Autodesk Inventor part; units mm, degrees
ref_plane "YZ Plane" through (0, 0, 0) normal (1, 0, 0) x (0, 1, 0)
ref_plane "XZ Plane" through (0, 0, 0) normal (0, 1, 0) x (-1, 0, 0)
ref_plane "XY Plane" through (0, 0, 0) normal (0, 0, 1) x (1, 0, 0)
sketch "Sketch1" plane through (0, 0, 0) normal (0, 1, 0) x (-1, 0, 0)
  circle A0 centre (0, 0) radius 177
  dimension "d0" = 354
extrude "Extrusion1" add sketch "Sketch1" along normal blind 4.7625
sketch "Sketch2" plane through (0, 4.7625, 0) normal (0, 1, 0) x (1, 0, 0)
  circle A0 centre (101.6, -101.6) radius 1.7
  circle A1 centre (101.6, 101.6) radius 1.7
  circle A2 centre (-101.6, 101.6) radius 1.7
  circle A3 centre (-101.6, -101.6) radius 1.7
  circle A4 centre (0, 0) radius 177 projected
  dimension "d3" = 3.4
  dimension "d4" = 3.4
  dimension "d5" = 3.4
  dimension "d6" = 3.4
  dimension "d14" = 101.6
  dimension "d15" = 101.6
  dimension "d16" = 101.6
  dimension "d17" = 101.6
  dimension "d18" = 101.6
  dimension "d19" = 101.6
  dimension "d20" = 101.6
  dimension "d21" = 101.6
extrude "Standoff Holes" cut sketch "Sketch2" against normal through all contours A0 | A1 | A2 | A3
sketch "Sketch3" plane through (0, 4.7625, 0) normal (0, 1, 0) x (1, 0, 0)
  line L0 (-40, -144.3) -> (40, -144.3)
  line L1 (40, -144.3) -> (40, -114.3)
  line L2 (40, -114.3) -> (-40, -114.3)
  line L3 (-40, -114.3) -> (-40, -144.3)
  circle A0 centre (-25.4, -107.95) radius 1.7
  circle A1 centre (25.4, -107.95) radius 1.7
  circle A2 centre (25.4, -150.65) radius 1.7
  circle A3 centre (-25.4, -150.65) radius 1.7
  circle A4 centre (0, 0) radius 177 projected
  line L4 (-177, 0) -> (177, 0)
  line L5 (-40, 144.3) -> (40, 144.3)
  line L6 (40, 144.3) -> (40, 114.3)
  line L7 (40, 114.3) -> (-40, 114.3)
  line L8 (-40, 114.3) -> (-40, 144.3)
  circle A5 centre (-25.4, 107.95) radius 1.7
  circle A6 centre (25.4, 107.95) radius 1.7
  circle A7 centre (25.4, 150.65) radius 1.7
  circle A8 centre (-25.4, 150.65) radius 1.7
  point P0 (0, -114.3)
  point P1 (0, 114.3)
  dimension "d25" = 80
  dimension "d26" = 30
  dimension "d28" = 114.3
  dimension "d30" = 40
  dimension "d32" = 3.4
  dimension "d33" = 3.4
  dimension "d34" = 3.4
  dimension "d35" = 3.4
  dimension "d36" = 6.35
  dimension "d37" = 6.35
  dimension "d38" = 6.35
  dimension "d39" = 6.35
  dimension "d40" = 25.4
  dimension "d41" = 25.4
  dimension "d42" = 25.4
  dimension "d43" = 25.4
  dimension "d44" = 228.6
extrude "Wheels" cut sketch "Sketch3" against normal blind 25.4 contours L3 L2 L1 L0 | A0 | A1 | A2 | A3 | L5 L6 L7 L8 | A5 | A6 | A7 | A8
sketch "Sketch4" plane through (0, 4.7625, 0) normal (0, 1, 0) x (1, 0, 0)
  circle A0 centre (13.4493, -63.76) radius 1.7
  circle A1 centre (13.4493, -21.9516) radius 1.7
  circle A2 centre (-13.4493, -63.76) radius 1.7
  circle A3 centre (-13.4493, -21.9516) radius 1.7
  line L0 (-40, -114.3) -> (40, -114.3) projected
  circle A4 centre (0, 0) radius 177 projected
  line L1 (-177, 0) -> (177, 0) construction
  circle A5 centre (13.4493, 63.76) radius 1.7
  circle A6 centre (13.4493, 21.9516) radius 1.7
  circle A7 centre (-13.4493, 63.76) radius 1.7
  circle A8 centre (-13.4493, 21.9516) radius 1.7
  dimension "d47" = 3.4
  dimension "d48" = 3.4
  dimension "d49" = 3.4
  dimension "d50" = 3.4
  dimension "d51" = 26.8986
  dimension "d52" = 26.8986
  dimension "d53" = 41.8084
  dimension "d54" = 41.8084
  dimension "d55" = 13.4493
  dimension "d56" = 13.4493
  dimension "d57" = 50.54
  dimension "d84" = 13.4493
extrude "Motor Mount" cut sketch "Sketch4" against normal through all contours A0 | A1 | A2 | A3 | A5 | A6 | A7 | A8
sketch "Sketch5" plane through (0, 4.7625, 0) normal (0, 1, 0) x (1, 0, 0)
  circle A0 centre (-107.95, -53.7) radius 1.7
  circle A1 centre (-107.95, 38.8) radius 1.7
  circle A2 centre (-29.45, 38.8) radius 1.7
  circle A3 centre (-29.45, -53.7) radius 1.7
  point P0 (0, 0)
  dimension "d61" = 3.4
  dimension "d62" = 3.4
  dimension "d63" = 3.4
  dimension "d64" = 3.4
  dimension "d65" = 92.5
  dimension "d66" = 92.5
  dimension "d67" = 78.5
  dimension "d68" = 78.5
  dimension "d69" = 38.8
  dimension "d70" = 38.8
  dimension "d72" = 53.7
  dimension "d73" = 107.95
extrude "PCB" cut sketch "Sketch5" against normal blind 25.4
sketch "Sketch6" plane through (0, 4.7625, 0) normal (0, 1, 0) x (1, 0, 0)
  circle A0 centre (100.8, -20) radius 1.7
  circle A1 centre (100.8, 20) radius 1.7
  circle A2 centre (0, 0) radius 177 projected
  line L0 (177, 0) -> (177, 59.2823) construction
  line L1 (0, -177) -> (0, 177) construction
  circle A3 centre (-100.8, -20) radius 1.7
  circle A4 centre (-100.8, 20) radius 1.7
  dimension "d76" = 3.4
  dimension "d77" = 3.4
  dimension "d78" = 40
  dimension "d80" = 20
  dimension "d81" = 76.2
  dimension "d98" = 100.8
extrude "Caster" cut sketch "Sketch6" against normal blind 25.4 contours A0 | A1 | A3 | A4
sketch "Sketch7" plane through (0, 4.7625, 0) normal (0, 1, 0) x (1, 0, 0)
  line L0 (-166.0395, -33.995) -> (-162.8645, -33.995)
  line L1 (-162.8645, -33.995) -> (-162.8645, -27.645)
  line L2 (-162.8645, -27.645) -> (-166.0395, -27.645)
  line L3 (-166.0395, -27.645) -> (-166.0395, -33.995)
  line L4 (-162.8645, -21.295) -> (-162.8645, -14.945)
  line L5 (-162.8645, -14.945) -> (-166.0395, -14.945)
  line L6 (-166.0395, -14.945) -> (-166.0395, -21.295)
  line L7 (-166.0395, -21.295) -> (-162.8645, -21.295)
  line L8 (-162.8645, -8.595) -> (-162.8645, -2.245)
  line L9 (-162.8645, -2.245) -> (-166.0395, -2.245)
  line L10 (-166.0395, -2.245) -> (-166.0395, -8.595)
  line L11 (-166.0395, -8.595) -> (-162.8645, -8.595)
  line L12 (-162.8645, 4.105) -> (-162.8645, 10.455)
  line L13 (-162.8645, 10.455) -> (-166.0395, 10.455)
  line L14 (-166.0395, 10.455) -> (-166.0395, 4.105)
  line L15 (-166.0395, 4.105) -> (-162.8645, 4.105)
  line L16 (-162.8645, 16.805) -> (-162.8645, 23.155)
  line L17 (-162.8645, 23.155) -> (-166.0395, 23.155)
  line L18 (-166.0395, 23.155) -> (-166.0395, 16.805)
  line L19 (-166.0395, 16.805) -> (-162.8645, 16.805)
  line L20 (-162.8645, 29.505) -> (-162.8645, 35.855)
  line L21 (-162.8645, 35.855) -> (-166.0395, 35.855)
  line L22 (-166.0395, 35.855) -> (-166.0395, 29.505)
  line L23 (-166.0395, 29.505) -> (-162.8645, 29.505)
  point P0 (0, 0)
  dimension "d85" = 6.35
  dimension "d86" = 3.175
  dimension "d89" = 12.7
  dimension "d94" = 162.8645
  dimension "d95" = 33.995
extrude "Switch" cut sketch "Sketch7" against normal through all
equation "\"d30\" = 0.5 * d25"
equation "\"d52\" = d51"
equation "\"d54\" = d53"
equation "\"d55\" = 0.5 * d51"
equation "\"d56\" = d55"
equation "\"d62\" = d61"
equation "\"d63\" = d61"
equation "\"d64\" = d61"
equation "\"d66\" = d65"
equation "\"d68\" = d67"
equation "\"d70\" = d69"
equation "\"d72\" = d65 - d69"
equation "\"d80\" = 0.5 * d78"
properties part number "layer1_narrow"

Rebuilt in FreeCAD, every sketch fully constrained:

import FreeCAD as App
import Part
import Sketcher

V = App.Vector
Q = App.Units.Quantity

doc = App.newDocument("Part")
body = doc.addObject("PartDesign::Body", "Body")

sketch1 = body.newObject("Sketcher::SketchObject", "Sketch")
sketch1.AttachmentSupport = (doc.getObject("XZ_Plane"), [""])
sketch1.MapMode = "FlatFace"
sketch1.addGeometry(Part.Circle(V(0, 0, 0), V(0, 0, 1), 177), False)
sketch1.addConstraint(Sketcher.Constraint("Coincident", 0, 3, -1, 1))
sketch1.addConstraint(Sketcher.Constraint("Diameter", 0, Q("13.937 in")))
pad1 = body.newObject("PartDesign::Pad", "Pad")
pad1.Profile = sketch1
pad1.Length = Q("0.1875 in")
pad1.Reversed = True

sketch2 = body.newObject("Sketcher::SketchObject", "Sketch001")
sketch2.AttachmentSupport = (doc.getObject("XZ_Plane"), [""])
sketch2.MapMode = "FlatFace"
sketch2.AttachmentOffset = App.Placement(V(0, 0, -0.1875 * 25.4), App.Rotation())
sketch2.addGeometry(Part.Circle(V(101.6, 101.6, 0), V(0, 0, 1), 1.7), False)
sketch2.addGeometry(Part.Circle(V(101.6, -101.6, 0), V(0, 0, 1), 1.7), False)
sketch2.addGeometry(Part.Circle(V(-101.6, -101.6, 0), V(0, 0, 1), 1.7), False)
sketch2.addGeometry(Part.Circle(V(-101.6, 101.6, 0), V(0, 0, 1), 1.7), False)
sketch2.addConstraint(Sketcher.Constraint("Equal", 0, 1))
sketch2.addConstraint(Sketcher.Constraint("Equal", 1, 2))
sketch2.addConstraint(Sketcher.Constraint("Equal", 2, 3))
sketch2.addConstraint(Sketcher.Constraint("Symmetric", 0, 3, 2, 3, -1, 1))
sketch2.addConstraint(Sketcher.Constraint("Symmetric", 1, 3, 3, 3, -1, 1))
sketch2.addConstraint(Sketcher.Constraint("Symmetric", 1, 3, 2, 3, -2))
sketch2.addConstraint(Sketcher.Constraint("DistanceX", -1, 1, 0, 3, Q("4 in")))
sketch2.addConstraint(Sketcher.Constraint("DistanceY", -1, 1, 0, 3, Q("4 in")))
sketch2.addConstraint(Sketcher.Constraint("Diameter", 0, Q("3.4 mm")))
pocket1 = body.newObject("PartDesign::Pocket", "Pocket")
pocket1.Profile = sketch2
pocket1.Type = "ThroughAll"
pocket1.Reversed = True

sketch3 = body.newObject("Sketcher::SketchObject", "Sketch002")
sketch3.AttachmentSupport = (doc.getObject("XZ_Plane"), [""])
sketch3.MapMode = "FlatFace"
sketch3.AttachmentOffset = App.Placement(V(0, 0, -0.1875 * 25.4), App.Rotation())
sketch3.addGeometry(Part.LineSegment(V(-40, 114.3, 0), V(-40, 144.3, 0)), False)
sketch3.addGeometry(Part.LineSegment(V(-40, 144.3, 0), V(40, 144.3, 0)), False)
sketch3.addGeometry(Part.LineSegment(V(40, 144.3, 0), V(40, 114.3, 0)), False)
sketch3.addGeometry(Part.LineSegment(V(40, 114.3, 0), V(-40, 114.3, 0)), False)
sketch3.addGeometry(Part.Circle(V(-25.4, 108, 0), V(0, 0, 1), 1.7), False)
sketch3.addGeometry(Part.Circle(V(25.4, 108, 0), V(0, 0, 1), 1.7), False)
sketch3.addGeometry(Part.Circle(V(25.4, 150.7, 0), V(0, 0, 1), 1.7), False)
sketch3.addGeometry(Part.Circle(V(-25.4, 150.7, 0), V(0, 0, 1), 1.7), False)
sketch3.addGeometry(Part.LineSegment(V(40, -144.3, 0), V(-40, -144.3, 0)), False)
sketch3.addGeometry(Part.LineSegment(V(-40, -144.3, 0), V(-40, -114.3, 0)), False)
sketch3.addGeometry(Part.LineSegment(V(-40, -114.3, 0), V(40, -114.3, 0)), False)
sketch3.addGeometry(Part.LineSegment(V(40, -114.3, 0), V(40, -144.3, 0)), False)
sketch3.addGeometry(Part.Circle(V(-25.4, -108, 0), V(0, 0, 1), 1.7), False)
sketch3.addGeometry(Part.Circle(V(25.4, -108, 0), V(0, 0, 1), 1.7), False)
sketch3.addGeometry(Part.Circle(V(25.4, -150.7, 0), V(0, 0, 1), 1.7), False)
sketch3.addGeometry(Part.Circle(V(-25.4, -150.7, 0), V(0, 0, 1), 1.7), False)
sketch3.addConstraint(Sketcher.Constraint("Coincident", 0, 2, 1, 1))
sketch3.addConstraint(Sketcher.Constraint("Coincident", 1, 2, 2, 1))
sketch3.addConstraint(Sketcher.Constraint("Coincident", 2, 2, 3, 1))
sketch3.addConstraint(Sketcher.Constraint("Coincident", 3, 2, 0, 1))
sketch3.addConstraint(Sketcher.Constraint("Coincident", 8, 2, 9, 1))
sketch3.addConstraint(Sketcher.Constraint("Coincident", 9, 2, 10, 1))
sketch3.addConstraint(Sketcher.Constraint("Coincident", 10, 2, 11, 1))
sketch3.addConstraint(Sketcher.Constraint("Coincident", 11, 2, 8, 1))
sketch3.addConstraint(Sketcher.Constraint("Vertical", 0))
sketch3.addConstraint(Sketcher.Constraint("Horizontal", 1))
sketch3.addConstraint(Sketcher.Constraint("Vertical", 2))
sketch3.addConstraint(Sketcher.Constraint("Horizontal", 3))
sketch3.addConstraint(Sketcher.Constraint("Horizontal", 8))
sketch3.addConstraint(Sketcher.Constraint("Vertical", 9))
sketch3.addConstraint(Sketcher.Constraint("Horizontal", 10))
sketch3.addConstraint(Sketcher.Constraint("Vertical", 11))
sketch3.addConstraint(Sketcher.Constraint("Equal", 4, 5))
sketch3.addConstraint(Sketcher.Constraint("Equal", 5, 6))
sketch3.addConstraint(Sketcher.Constraint("Equal", 6, 7))
sketch3.addConstraint(Sketcher.Constraint("Equal", 7, 12))
sketch3.addConstraint(Sketcher.Constraint("Equal", 12, 13))
sketch3.addConstraint(Sketcher.Constraint("Equal", 13, 14))
sketch3.addConstraint(Sketcher.Constraint("Equal", 14, 15))
sketch3.addConstraint(Sketcher.Constraint("Symmetric", 5, 3, 12, 3, -1, 1))
sketch3.addConstraint(Sketcher.Constraint("Symmetric", 4, 3, 13, 3, -1, 1))
sketch3.addConstraint(Sketcher.Constraint("Symmetric", 7, 3, 14, 3, -1, 1))
sketch3.addConstraint(Sketcher.Constraint("Symmetric", 6, 3, 15, 3, -1, 1))
sketch3.addConstraint(Sketcher.Constraint("Symmetric", 1, 2, 8, 2, -1, 1))
sketch3.addConstraint(Sketcher.Constraint("Symmetric", 3, 2, 10, 2, -1, 1))
sketch3.addConstraint(Sketcher.Constraint("Symmetric", 4, 3, 5, 3, -2))
sketch3.addConstraint(Sketcher.Constraint("Symmetric", 6, 3, 7, 3, -2))
sketch3.addConstraint(Sketcher.Constraint("Vertical", 5, 3, 6, 3))
sketch3.addConstraint(Sketcher.Constraint("Vertical", 3, 2, 8, 2))
sketch3.addConstraint(Sketcher.Constraint("DistanceX", 4, 3, -1, 1, Q("1 in")))
sketch3.addConstraint(Sketcher.Constraint("DistanceY", -1, 1, 2, 2, Q("4.5 in")))
sketch3.addConstraint(Sketcher.Constraint("Diameter", 4, Q("3.4 mm")))
sketch3.addConstraint(Sketcher.Constraint("DistanceY", 0, 2, 7, 3, Q("0.25 in")))
sketch3.addConstraint(Sketcher.Constraint("DistanceY", 5, 3, 2, 2, Q("0.25 in")))
sketch3.addConstraint(Sketcher.Constraint("DistanceX", 1, 1, 1, 2, Q("3.1496 in")))
sketch3.addConstraint(Sketcher.Constraint("DistanceY", 0, 1, 0, 2, Q("1.1811 in")))
pocket2 = body.newObject("PartDesign::Pocket", "Pocket001")
pocket2.Profile = sketch3
pocket2.Length = Q("1 in")
pocket2.Reversed = True

sketch4 = body.newObject("Sketcher::SketchObject", "Sketch003")
sketch4.AttachmentSupport = (doc.getObject("XZ_Plane"), [""])
sketch4.MapMode = "FlatFace"
sketch4.AttachmentOffset = App.Placement(V(0, 0, -0.1875 * 25.4), App.Rotation())
sketch4.addGeometry(Part.Circle(V(13.4, 63.8, 0), V(0, 0, 1), 1.7), False)
sketch4.addGeometry(Part.Circle(V(13.4, 22, 0), V(0, 0, 1), 1.7), False)
sketch4.addGeometry(Part.Circle(V(-13.4, 63.8, 0), V(0, 0, 1), 1.7), False)
sketch4.addGeometry(Part.Circle(V(-13.4, 22, 0), V(0, 0, 1), 1.7), False)
sketch4.addGeometry(Part.Circle(V(13.4, -63.8, 0), V(0, 0, 1), 1.7), False)
sketch4.addGeometry(Part.Circle(V(13.4, -22, 0), V(0, 0, 1), 1.7), False)
sketch4.addGeometry(Part.Circle(V(-13.4, -63.8, 0), V(0, 0, 1), 1.7), False)
sketch4.addGeometry(Part.Circle(V(-13.4, -22, 0), V(0, 0, 1), 1.7), False)
sketch4.addConstraint(Sketcher.Constraint("Equal", 0, 1))
sketch4.addConstraint(Sketcher.Constraint("Equal", 1, 2))
sketch4.addConstraint(Sketcher.Constraint("Equal", 2, 3))
sketch4.addConstraint(Sketcher.Constraint("Equal", 3, 4))
sketch4.addConstraint(Sketcher.Constraint("Equal", 4, 5))
sketch4.addConstraint(Sketcher.Constraint("Equal", 5, 6))
sketch4.addConstraint(Sketcher.Constraint("Equal", 6, 7))
sketch4.addConstraint(Sketcher.Constraint("Symmetric", 2, 3, 4, 3, -1, 1))
sketch4.addConstraint(Sketcher.Constraint("Symmetric", 3, 3, 5, 3, -1, 1))
sketch4.addConstraint(Sketcher.Constraint("Symmetric", 0, 3, 6, 3, -1, 1))
sketch4.addConstraint(Sketcher.Constraint("Symmetric", 1, 3, 7, 3, -1, 1))
sketch4.addConstraint(Sketcher.Constraint("Symmetric", 0, 3, 2, 3, -2))
sketch4.addConstraint(Sketcher.Constraint("Symmetric", 1, 3, 3, 3, -2))
sketch4.addConstraint(Sketcher.Constraint("Vertical", 0, 3, 1, 3))
sketch4.addConstraint(Sketcher.Constraint("Diameter", 0, Q("3.4 mm")))
sketch4.addConstraint(Sketcher.Constraint("DistanceY", 1, 3, 0, 3, Q("1.646 in")))
sketch4.addConstraint(Sketcher.Constraint("DistanceX", 2, 3, 0, 3, Q("1.059 in")))
sketch4.addConstraint(Sketcher.Constraint("DistanceY", -1, 1, 0, 3, Q("63.76 mm")))
pocket3 = body.newObject("PartDesign::Pocket", "Pocket002")
pocket3.Profile = sketch4
pocket3.Type = "ThroughAll"
pocket3.Reversed = True

sketch5 = body.newObject("Sketcher::SketchObject", "Sketch004")
sketch5.AttachmentSupport = (doc.getObject("XZ_Plane"), [""])
sketch5.MapMode = "FlatFace"
sketch5.AttachmentOffset = App.Placement(V(0, 0, -0.1875 * 25.4), App.Rotation())
sketch5.addGeometry(Part.Circle(V(-108, 53.7, 0), V(0, 0, 1), 1.7), False)
sketch5.addGeometry(Part.Circle(V(-108, -38.8, 0), V(0, 0, 1), 1.7), False)
sketch5.addGeometry(Part.Circle(V(-29.4, -38.8, 0), V(0, 0, 1), 1.7), False)
sketch5.addGeometry(Part.Circle(V(-29.4, 53.7, 0), V(0, 0, 1), 1.7), False)
sketch5.addConstraint(Sketcher.Constraint("Equal", 0, 1))
sketch5.addConstraint(Sketcher.Constraint("Equal", 1, 2))
sketch5.addConstraint(Sketcher.Constraint("Equal", 2, 3))
sketch5.addConstraint(Sketcher.Constraint("Horizontal", 1, 3, 2, 3))
sketch5.addConstraint(Sketcher.Constraint("Horizontal", 0, 3, 3, 3))
sketch5.addConstraint(Sketcher.Constraint("Vertical", 0, 3, 1, 3))
sketch5.addConstraint(Sketcher.Constraint("Vertical", 2, 3, 3, 3))
sketch5.addConstraint(Sketcher.Constraint("Diameter", 0, Q("3.4 mm")))
sketch5.addConstraint(Sketcher.Constraint("DistanceX", 0, 3, -1, 1, Q("4.25 in")))
sketch5.addConstraint(Sketcher.Constraint("DistanceY", -1, 1, 0, 3, Q("53.7 mm")))
sketch5.addConstraint(Sketcher.Constraint("DistanceY", 1, 3, -1, 1, Q("38.8 mm")))
sketch5.addConstraint(Sketcher.Constraint("DistanceX", 1, 3, 2, 3, Q("78.5 mm")))
pocket4 = body.newObject("PartDesign::Pocket", "Pocket003")
pocket4.Profile = sketch5
pocket4.Length = Q("1 in")
pocket4.Reversed = True

sketch6 = body.newObject("Sketcher::SketchObject", "Sketch005")
sketch6.AttachmentSupport = (doc.getObject("XZ_Plane"), [""])
sketch6.MapMode = "FlatFace"
sketch6.AttachmentOffset = App.Placement(V(0, 0, -0.1875 * 25.4), App.Rotation())
sketch6.addGeometry(Part.Circle(V(100.8, 20, 0), V(0, 0, 1), 1.7), False)
sketch6.addGeometry(Part.Circle(V(100.8, -20, 0), V(0, 0, 1), 1.7), False)
sketch6.addGeometry(Part.Circle(V(-100.8, 20, 0), V(0, 0, 1), 1.7), False)
sketch6.addGeometry(Part.Circle(V(-100.8, -20, 0), V(0, 0, 1), 1.7), False)
sketch6.addConstraint(Sketcher.Constraint("Equal", 0, 1))
sketch6.addConstraint(Sketcher.Constraint("Equal", 1, 2))
sketch6.addConstraint(Sketcher.Constraint("Equal", 2, 3))
sketch6.addConstraint(Sketcher.Constraint("Symmetric", 1, 3, 2, 3, -1, 1))
sketch6.addConstraint(Sketcher.Constraint("Symmetric", 0, 3, 3, 3, -1, 1))
sketch6.addConstraint(Sketcher.Constraint("Symmetric", 0, 3, 2, 3, -2))
sketch6.addConstraint(Sketcher.Constraint("Diameter", 0, Q("3.4 mm")))
sketch6.addConstraint(Sketcher.Constraint("DistanceX", -1, 1, 0, 3, Q("3.9685 in")))
sketch6.addConstraint(Sketcher.Constraint("DistanceY", -1, 1, 0, 3, Q("0.7874 in")))
pocket5 = body.newObject("PartDesign::Pocket", "Pocket004")
pocket5.Profile = sketch6
pocket5.Length = Q("1 in")
pocket5.Reversed = True

sketch7 = body.newObject("Sketcher::SketchObject", "Sketch006")
sketch7.AttachmentSupport = (doc.getObject("XZ_Plane"), [""])
sketch7.MapMode = "FlatFace"
sketch7.AttachmentOffset = App.Placement(V(0, 0, -0.1875 * 25.4), App.Rotation())
sketch7.addGeometry(Part.LineSegment(V(-166, 27.6, 0), V(-166, 34, 0)), False)
sketch7.addGeometry(Part.LineSegment(V(-166, 34, 0), V(-162.9, 34, 0)), False)
sketch7.addGeometry(Part.LineSegment(V(-162.9, 34, 0), V(-162.9, 27.6, 0)), False)
sketch7.addGeometry(Part.LineSegment(V(-162.9, 27.6, 0), V(-166, 27.6, 0)), False)
sketch7.addGeometry(Part.LineSegment(V(-166, 21.3, 0), V(-162.9, 21.3, 0)), False)
sketch7.addGeometry(Part.LineSegment(V(-162.9, 21.3, 0), V(-162.9, 14.9, 0)), False)
sketch7.addGeometry(Part.LineSegment(V(-162.9, 14.9, 0), V(-166, 14.9, 0)), False)
sketch7.addGeometry(Part.LineSegment(V(-166, 14.9, 0), V(-166, 21.3, 0)), False)
sketch7.addGeometry(Part.LineSegment(V(-166, 8.6, 0), V(-162.9, 8.6, 0)), False)
sketch7.addGeometry(Part.LineSegment(V(-162.9, 8.6, 0), V(-162.9, 2.2, 0)), False)
sketch7.addGeometry(Part.LineSegment(V(-162.9, 2.2, 0), V(-166, 2.2, 0)), False)
sketch7.addGeometry(Part.LineSegment(V(-166, 2.2, 0), V(-166, 8.6, 0)), False)
sketch7.addGeometry(Part.LineSegment(V(-166, -4.1, 0), V(-162.9, -4.1, 0)), False)
sketch7.addGeometry(Part.LineSegment(V(-162.9, -4.1, 0), V(-162.9, -10.5, 0)), False)
sketch7.addGeometry(Part.LineSegment(V(-162.9, -10.5, 0), V(-166, -10.5, 0)), False)
sketch7.addGeometry(Part.LineSegment(V(-166, -10.5, 0), V(-166, -4.1, 0)), False)
sketch7.addGeometry(Part.LineSegment(V(-166, -16.8, 0), V(-162.9, -16.8, 0)), False)
sketch7.addGeometry(Part.LineSegment(V(-162.9, -16.8, 0), V(-162.9, -23.2, 0)), False)
sketch7.addGeometry(Part.LineSegment(V(-162.9, -23.2, 0), V(-166, -23.2, 0)), False)
sketch7.addGeometry(Part.LineSegment(V(-166, -23.2, 0), V(-166, -16.8, 0)), False)
sketch7.addGeometry(Part.LineSegment(V(-166, -29.5, 0), V(-162.9, -29.5, 0)), False)
sketch7.addGeometry(Part.LineSegment(V(-162.9, -29.5, 0), V(-162.9, -35.9, 0)), False)
sketch7.addGeometry(Part.LineSegment(V(-162.9, -35.9, 0), V(-166, -35.9, 0)), False)
sketch7.addGeometry(Part.LineSegment(V(-166, -35.9, 0), V(-166, -29.5, 0)), False)
sketch7.addConstraint(Sketcher.Constraint("Coincident", 0, 2, 1, 1))
sketch7.addConstraint(Sketcher.Constraint("Coincident", 1, 2, 2, 1))
sketch7.addConstraint(Sketcher.Constraint("Coincident", 2, 2, 3, 1))
sketch7.addConstraint(Sketcher.Constraint("Coincident", 3, 2, 0, 1))
sketch7.addConstraint(Sketcher.Constraint("Coincident", 4, 2, 5, 1))
sketch7.addConstraint(Sketcher.Constraint("Coincident", 5, 2, 6, 1))
sketch7.addConstraint(Sketcher.Constraint("Coincident", 6, 2, 7, 1))
sketch7.addConstraint(Sketcher.Constraint("Coincident", 7, 2, 4, 1))
sketch7.addConstraint(Sketcher.Constraint("Coincident", 8, 2, 9, 1))
sketch7.addConstraint(Sketcher.Constraint("Coincident", 9, 2, 10, 1))
sketch7.addConstraint(Sketcher.Constraint("Coincident", 10, 2, 11, 1))
sketch7.addConstraint(Sketcher.Constraint("Coincident", 11, 2, 8, 1))
sketch7.addConstraint(Sketcher.Constraint("Coincident", 12, 2, 13, 1))
sketch7.addConstraint(Sketcher.Constraint("Coincident", 13, 2, 14, 1))
sketch7.addConstraint(Sketcher.Constraint("Coincident", 14, 2, 15, 1))
sketch7.addConstraint(Sketcher.Constraint("Coincident", 15, 2, 12, 1))
sketch7.addConstraint(Sketcher.Constraint("Coincident", 16, 2, 17, 1))
sketch7.addConstraint(Sketcher.Constraint("Coincident", 17, 2, 18, 1))
sketch7.addConstraint(Sketcher.Constraint("Coincident", 18, 2, 19, 1))
sketch7.addConstraint(Sketcher.Constraint("Coincident", 19, 2, 16, 1))
sketch7.addConstraint(Sketcher.Constraint("Coincident", 20, 2, 21, 1))
sketch7.addConstraint(Sketcher.Constraint("Coincident", 21, 2, 22, 1))
sketch7.addConstraint(Sketcher.Constraint("Coincident", 22, 2, 23, 1))
sketch7.addConstraint(Sketcher.Constraint("Coincident", 23, 2, 20, 1))
sketch7.addConstraint(Sketcher.Constraint("Vertical", 0))
sketch7.addConstraint(Sketcher.Constraint("Horizontal", 1))
sketch7.addConstraint(Sketcher.Constraint("Vertical", 2))
sketch7.addConstraint(Sketcher.Constraint("Horizontal", 3))
sketch7.addConstraint(Sketcher.Constraint("Horizontal", 4))
sketch7.addConstraint(Sketcher.Constraint("Vertical", 5))
sketch7.addConstraint(Sketcher.Constraint("Horizontal", 6))
sketch7.addConstraint(Sketcher.Constraint("Vertical", 7))
sketch7.addConstraint(Sketcher.Constraint("Horizontal", 8))
sketch7.addConstraint(Sketcher.Constraint("Vertical", 9))
sketch7.addConstraint(Sketcher.Constraint("Horizontal", 10))
sketch7.addConstraint(Sketcher.Constraint("Vertical", 11))
sketch7.addConstraint(Sketcher.Constraint("Horizontal", 12))
sketch7.addConstraint(Sketcher.Constraint("Vertical", 13))
sketch7.addConstraint(Sketcher.Constraint("Horizontal", 14))
sketch7.addConstraint(Sketcher.Constraint("Vertical", 15))
sketch7.addConstraint(Sketcher.Constraint("Horizontal", 16))
sketch7.addConstraint(Sketcher.Constraint("Vertical", 17))
sketch7.addConstraint(Sketcher.Constraint("Horizontal", 18))
sketch7.addConstraint(Sketcher.Constraint("Vertical", 19))
sketch7.addConstraint(Sketcher.Constraint("Horizontal", 20))
sketch7.addConstraint(Sketcher.Constraint("Vertical", 21))
sketch7.addConstraint(Sketcher.Constraint("Horizontal", 22))
sketch7.addConstraint(Sketcher.Constraint("Vertical", 23))
sketch7.addConstraint(Sketcher.Constraint("Vertical", 2, 2, 4, 2))
sketch7.addConstraint(Sketcher.Constraint("Vertical", 3, 2, 6, 2))
sketch7.addConstraint(Sketcher.Constraint("Vertical", 5, 2, 8, 2))
sketch7.addConstraint(Sketcher.Constraint("Vertical", 7, 2, 10, 2))
sketch7.addConstraint(Sketcher.Constraint("Vertical", 9, 2, 12, 2))
sketch7.addConstraint(Sketcher.Constraint("Vertical", 11, 2, 14, 2))
sketch7.addConstraint(Sketcher.Constraint("Vertical", 13, 2, 16, 2))
sketch7.addConstraint(Sketcher.Constraint("Vertical", 15, 2, 18, 2))
sketch7.addConstraint(Sketcher.Constraint("Vertical", 17, 2, 20, 2))
sketch7.addConstraint(Sketcher.Constraint("Vertical", 19, 2, 22, 2))
sketch7.addConstraint(Sketcher.Constraint("Equal", 2, 5))
sketch7.addConstraint(Sketcher.Constraint("Equal", 7, 9))
sketch7.addConstraint(Sketcher.Constraint("Equal", 11, 13))
sketch7.addConstraint(Sketcher.Constraint("Equal", 15, 17))
sketch7.addConstraint(Sketcher.Constraint("Equal", 19, 21))
sketch7.addConstraint(Sketcher.Constraint("DistanceY", 0, 1, 0, 2, Q("0.25 in")))
sketch7.addConstraint(Sketcher.Constraint("DistanceY", 4, 2, 1, 2, Q("0.5 in")))
sketch7.addConstraint(Sketcher.Constraint("DistanceY", 8, 2, 4, 2, Q("0.5 in")))
sketch7.addConstraint(Sketcher.Constraint("DistanceY", 12, 2, 8, 2, Q("0.5 in")))
sketch7.addConstraint(Sketcher.Constraint("DistanceY", 16, 2, 12, 2, Q("0.5 in")))
sketch7.addConstraint(Sketcher.Constraint("DistanceY", 20, 2, 16, 2, Q("0.5 in")))
sketch7.addConstraint(Sketcher.Constraint("DistanceX", 1, 1, 1, 2, Q("0.125 in")))
sketch7.addConstraint(Sketcher.Constraint("DistanceX", 1, 2, -1, 1, Q("6.412 in")))
sketch7.addConstraint(Sketcher.Constraint("DistanceY", -1, 1, 0, 2, Q("33.995 mm")))
pocket6 = body.newObject("PartDesign::Pocket", "Pocket005")
pocket6.Profile = sketch7
pocket6.Type = "ThroughAll"
pocket6.Reversed = True

doc.recompute()
